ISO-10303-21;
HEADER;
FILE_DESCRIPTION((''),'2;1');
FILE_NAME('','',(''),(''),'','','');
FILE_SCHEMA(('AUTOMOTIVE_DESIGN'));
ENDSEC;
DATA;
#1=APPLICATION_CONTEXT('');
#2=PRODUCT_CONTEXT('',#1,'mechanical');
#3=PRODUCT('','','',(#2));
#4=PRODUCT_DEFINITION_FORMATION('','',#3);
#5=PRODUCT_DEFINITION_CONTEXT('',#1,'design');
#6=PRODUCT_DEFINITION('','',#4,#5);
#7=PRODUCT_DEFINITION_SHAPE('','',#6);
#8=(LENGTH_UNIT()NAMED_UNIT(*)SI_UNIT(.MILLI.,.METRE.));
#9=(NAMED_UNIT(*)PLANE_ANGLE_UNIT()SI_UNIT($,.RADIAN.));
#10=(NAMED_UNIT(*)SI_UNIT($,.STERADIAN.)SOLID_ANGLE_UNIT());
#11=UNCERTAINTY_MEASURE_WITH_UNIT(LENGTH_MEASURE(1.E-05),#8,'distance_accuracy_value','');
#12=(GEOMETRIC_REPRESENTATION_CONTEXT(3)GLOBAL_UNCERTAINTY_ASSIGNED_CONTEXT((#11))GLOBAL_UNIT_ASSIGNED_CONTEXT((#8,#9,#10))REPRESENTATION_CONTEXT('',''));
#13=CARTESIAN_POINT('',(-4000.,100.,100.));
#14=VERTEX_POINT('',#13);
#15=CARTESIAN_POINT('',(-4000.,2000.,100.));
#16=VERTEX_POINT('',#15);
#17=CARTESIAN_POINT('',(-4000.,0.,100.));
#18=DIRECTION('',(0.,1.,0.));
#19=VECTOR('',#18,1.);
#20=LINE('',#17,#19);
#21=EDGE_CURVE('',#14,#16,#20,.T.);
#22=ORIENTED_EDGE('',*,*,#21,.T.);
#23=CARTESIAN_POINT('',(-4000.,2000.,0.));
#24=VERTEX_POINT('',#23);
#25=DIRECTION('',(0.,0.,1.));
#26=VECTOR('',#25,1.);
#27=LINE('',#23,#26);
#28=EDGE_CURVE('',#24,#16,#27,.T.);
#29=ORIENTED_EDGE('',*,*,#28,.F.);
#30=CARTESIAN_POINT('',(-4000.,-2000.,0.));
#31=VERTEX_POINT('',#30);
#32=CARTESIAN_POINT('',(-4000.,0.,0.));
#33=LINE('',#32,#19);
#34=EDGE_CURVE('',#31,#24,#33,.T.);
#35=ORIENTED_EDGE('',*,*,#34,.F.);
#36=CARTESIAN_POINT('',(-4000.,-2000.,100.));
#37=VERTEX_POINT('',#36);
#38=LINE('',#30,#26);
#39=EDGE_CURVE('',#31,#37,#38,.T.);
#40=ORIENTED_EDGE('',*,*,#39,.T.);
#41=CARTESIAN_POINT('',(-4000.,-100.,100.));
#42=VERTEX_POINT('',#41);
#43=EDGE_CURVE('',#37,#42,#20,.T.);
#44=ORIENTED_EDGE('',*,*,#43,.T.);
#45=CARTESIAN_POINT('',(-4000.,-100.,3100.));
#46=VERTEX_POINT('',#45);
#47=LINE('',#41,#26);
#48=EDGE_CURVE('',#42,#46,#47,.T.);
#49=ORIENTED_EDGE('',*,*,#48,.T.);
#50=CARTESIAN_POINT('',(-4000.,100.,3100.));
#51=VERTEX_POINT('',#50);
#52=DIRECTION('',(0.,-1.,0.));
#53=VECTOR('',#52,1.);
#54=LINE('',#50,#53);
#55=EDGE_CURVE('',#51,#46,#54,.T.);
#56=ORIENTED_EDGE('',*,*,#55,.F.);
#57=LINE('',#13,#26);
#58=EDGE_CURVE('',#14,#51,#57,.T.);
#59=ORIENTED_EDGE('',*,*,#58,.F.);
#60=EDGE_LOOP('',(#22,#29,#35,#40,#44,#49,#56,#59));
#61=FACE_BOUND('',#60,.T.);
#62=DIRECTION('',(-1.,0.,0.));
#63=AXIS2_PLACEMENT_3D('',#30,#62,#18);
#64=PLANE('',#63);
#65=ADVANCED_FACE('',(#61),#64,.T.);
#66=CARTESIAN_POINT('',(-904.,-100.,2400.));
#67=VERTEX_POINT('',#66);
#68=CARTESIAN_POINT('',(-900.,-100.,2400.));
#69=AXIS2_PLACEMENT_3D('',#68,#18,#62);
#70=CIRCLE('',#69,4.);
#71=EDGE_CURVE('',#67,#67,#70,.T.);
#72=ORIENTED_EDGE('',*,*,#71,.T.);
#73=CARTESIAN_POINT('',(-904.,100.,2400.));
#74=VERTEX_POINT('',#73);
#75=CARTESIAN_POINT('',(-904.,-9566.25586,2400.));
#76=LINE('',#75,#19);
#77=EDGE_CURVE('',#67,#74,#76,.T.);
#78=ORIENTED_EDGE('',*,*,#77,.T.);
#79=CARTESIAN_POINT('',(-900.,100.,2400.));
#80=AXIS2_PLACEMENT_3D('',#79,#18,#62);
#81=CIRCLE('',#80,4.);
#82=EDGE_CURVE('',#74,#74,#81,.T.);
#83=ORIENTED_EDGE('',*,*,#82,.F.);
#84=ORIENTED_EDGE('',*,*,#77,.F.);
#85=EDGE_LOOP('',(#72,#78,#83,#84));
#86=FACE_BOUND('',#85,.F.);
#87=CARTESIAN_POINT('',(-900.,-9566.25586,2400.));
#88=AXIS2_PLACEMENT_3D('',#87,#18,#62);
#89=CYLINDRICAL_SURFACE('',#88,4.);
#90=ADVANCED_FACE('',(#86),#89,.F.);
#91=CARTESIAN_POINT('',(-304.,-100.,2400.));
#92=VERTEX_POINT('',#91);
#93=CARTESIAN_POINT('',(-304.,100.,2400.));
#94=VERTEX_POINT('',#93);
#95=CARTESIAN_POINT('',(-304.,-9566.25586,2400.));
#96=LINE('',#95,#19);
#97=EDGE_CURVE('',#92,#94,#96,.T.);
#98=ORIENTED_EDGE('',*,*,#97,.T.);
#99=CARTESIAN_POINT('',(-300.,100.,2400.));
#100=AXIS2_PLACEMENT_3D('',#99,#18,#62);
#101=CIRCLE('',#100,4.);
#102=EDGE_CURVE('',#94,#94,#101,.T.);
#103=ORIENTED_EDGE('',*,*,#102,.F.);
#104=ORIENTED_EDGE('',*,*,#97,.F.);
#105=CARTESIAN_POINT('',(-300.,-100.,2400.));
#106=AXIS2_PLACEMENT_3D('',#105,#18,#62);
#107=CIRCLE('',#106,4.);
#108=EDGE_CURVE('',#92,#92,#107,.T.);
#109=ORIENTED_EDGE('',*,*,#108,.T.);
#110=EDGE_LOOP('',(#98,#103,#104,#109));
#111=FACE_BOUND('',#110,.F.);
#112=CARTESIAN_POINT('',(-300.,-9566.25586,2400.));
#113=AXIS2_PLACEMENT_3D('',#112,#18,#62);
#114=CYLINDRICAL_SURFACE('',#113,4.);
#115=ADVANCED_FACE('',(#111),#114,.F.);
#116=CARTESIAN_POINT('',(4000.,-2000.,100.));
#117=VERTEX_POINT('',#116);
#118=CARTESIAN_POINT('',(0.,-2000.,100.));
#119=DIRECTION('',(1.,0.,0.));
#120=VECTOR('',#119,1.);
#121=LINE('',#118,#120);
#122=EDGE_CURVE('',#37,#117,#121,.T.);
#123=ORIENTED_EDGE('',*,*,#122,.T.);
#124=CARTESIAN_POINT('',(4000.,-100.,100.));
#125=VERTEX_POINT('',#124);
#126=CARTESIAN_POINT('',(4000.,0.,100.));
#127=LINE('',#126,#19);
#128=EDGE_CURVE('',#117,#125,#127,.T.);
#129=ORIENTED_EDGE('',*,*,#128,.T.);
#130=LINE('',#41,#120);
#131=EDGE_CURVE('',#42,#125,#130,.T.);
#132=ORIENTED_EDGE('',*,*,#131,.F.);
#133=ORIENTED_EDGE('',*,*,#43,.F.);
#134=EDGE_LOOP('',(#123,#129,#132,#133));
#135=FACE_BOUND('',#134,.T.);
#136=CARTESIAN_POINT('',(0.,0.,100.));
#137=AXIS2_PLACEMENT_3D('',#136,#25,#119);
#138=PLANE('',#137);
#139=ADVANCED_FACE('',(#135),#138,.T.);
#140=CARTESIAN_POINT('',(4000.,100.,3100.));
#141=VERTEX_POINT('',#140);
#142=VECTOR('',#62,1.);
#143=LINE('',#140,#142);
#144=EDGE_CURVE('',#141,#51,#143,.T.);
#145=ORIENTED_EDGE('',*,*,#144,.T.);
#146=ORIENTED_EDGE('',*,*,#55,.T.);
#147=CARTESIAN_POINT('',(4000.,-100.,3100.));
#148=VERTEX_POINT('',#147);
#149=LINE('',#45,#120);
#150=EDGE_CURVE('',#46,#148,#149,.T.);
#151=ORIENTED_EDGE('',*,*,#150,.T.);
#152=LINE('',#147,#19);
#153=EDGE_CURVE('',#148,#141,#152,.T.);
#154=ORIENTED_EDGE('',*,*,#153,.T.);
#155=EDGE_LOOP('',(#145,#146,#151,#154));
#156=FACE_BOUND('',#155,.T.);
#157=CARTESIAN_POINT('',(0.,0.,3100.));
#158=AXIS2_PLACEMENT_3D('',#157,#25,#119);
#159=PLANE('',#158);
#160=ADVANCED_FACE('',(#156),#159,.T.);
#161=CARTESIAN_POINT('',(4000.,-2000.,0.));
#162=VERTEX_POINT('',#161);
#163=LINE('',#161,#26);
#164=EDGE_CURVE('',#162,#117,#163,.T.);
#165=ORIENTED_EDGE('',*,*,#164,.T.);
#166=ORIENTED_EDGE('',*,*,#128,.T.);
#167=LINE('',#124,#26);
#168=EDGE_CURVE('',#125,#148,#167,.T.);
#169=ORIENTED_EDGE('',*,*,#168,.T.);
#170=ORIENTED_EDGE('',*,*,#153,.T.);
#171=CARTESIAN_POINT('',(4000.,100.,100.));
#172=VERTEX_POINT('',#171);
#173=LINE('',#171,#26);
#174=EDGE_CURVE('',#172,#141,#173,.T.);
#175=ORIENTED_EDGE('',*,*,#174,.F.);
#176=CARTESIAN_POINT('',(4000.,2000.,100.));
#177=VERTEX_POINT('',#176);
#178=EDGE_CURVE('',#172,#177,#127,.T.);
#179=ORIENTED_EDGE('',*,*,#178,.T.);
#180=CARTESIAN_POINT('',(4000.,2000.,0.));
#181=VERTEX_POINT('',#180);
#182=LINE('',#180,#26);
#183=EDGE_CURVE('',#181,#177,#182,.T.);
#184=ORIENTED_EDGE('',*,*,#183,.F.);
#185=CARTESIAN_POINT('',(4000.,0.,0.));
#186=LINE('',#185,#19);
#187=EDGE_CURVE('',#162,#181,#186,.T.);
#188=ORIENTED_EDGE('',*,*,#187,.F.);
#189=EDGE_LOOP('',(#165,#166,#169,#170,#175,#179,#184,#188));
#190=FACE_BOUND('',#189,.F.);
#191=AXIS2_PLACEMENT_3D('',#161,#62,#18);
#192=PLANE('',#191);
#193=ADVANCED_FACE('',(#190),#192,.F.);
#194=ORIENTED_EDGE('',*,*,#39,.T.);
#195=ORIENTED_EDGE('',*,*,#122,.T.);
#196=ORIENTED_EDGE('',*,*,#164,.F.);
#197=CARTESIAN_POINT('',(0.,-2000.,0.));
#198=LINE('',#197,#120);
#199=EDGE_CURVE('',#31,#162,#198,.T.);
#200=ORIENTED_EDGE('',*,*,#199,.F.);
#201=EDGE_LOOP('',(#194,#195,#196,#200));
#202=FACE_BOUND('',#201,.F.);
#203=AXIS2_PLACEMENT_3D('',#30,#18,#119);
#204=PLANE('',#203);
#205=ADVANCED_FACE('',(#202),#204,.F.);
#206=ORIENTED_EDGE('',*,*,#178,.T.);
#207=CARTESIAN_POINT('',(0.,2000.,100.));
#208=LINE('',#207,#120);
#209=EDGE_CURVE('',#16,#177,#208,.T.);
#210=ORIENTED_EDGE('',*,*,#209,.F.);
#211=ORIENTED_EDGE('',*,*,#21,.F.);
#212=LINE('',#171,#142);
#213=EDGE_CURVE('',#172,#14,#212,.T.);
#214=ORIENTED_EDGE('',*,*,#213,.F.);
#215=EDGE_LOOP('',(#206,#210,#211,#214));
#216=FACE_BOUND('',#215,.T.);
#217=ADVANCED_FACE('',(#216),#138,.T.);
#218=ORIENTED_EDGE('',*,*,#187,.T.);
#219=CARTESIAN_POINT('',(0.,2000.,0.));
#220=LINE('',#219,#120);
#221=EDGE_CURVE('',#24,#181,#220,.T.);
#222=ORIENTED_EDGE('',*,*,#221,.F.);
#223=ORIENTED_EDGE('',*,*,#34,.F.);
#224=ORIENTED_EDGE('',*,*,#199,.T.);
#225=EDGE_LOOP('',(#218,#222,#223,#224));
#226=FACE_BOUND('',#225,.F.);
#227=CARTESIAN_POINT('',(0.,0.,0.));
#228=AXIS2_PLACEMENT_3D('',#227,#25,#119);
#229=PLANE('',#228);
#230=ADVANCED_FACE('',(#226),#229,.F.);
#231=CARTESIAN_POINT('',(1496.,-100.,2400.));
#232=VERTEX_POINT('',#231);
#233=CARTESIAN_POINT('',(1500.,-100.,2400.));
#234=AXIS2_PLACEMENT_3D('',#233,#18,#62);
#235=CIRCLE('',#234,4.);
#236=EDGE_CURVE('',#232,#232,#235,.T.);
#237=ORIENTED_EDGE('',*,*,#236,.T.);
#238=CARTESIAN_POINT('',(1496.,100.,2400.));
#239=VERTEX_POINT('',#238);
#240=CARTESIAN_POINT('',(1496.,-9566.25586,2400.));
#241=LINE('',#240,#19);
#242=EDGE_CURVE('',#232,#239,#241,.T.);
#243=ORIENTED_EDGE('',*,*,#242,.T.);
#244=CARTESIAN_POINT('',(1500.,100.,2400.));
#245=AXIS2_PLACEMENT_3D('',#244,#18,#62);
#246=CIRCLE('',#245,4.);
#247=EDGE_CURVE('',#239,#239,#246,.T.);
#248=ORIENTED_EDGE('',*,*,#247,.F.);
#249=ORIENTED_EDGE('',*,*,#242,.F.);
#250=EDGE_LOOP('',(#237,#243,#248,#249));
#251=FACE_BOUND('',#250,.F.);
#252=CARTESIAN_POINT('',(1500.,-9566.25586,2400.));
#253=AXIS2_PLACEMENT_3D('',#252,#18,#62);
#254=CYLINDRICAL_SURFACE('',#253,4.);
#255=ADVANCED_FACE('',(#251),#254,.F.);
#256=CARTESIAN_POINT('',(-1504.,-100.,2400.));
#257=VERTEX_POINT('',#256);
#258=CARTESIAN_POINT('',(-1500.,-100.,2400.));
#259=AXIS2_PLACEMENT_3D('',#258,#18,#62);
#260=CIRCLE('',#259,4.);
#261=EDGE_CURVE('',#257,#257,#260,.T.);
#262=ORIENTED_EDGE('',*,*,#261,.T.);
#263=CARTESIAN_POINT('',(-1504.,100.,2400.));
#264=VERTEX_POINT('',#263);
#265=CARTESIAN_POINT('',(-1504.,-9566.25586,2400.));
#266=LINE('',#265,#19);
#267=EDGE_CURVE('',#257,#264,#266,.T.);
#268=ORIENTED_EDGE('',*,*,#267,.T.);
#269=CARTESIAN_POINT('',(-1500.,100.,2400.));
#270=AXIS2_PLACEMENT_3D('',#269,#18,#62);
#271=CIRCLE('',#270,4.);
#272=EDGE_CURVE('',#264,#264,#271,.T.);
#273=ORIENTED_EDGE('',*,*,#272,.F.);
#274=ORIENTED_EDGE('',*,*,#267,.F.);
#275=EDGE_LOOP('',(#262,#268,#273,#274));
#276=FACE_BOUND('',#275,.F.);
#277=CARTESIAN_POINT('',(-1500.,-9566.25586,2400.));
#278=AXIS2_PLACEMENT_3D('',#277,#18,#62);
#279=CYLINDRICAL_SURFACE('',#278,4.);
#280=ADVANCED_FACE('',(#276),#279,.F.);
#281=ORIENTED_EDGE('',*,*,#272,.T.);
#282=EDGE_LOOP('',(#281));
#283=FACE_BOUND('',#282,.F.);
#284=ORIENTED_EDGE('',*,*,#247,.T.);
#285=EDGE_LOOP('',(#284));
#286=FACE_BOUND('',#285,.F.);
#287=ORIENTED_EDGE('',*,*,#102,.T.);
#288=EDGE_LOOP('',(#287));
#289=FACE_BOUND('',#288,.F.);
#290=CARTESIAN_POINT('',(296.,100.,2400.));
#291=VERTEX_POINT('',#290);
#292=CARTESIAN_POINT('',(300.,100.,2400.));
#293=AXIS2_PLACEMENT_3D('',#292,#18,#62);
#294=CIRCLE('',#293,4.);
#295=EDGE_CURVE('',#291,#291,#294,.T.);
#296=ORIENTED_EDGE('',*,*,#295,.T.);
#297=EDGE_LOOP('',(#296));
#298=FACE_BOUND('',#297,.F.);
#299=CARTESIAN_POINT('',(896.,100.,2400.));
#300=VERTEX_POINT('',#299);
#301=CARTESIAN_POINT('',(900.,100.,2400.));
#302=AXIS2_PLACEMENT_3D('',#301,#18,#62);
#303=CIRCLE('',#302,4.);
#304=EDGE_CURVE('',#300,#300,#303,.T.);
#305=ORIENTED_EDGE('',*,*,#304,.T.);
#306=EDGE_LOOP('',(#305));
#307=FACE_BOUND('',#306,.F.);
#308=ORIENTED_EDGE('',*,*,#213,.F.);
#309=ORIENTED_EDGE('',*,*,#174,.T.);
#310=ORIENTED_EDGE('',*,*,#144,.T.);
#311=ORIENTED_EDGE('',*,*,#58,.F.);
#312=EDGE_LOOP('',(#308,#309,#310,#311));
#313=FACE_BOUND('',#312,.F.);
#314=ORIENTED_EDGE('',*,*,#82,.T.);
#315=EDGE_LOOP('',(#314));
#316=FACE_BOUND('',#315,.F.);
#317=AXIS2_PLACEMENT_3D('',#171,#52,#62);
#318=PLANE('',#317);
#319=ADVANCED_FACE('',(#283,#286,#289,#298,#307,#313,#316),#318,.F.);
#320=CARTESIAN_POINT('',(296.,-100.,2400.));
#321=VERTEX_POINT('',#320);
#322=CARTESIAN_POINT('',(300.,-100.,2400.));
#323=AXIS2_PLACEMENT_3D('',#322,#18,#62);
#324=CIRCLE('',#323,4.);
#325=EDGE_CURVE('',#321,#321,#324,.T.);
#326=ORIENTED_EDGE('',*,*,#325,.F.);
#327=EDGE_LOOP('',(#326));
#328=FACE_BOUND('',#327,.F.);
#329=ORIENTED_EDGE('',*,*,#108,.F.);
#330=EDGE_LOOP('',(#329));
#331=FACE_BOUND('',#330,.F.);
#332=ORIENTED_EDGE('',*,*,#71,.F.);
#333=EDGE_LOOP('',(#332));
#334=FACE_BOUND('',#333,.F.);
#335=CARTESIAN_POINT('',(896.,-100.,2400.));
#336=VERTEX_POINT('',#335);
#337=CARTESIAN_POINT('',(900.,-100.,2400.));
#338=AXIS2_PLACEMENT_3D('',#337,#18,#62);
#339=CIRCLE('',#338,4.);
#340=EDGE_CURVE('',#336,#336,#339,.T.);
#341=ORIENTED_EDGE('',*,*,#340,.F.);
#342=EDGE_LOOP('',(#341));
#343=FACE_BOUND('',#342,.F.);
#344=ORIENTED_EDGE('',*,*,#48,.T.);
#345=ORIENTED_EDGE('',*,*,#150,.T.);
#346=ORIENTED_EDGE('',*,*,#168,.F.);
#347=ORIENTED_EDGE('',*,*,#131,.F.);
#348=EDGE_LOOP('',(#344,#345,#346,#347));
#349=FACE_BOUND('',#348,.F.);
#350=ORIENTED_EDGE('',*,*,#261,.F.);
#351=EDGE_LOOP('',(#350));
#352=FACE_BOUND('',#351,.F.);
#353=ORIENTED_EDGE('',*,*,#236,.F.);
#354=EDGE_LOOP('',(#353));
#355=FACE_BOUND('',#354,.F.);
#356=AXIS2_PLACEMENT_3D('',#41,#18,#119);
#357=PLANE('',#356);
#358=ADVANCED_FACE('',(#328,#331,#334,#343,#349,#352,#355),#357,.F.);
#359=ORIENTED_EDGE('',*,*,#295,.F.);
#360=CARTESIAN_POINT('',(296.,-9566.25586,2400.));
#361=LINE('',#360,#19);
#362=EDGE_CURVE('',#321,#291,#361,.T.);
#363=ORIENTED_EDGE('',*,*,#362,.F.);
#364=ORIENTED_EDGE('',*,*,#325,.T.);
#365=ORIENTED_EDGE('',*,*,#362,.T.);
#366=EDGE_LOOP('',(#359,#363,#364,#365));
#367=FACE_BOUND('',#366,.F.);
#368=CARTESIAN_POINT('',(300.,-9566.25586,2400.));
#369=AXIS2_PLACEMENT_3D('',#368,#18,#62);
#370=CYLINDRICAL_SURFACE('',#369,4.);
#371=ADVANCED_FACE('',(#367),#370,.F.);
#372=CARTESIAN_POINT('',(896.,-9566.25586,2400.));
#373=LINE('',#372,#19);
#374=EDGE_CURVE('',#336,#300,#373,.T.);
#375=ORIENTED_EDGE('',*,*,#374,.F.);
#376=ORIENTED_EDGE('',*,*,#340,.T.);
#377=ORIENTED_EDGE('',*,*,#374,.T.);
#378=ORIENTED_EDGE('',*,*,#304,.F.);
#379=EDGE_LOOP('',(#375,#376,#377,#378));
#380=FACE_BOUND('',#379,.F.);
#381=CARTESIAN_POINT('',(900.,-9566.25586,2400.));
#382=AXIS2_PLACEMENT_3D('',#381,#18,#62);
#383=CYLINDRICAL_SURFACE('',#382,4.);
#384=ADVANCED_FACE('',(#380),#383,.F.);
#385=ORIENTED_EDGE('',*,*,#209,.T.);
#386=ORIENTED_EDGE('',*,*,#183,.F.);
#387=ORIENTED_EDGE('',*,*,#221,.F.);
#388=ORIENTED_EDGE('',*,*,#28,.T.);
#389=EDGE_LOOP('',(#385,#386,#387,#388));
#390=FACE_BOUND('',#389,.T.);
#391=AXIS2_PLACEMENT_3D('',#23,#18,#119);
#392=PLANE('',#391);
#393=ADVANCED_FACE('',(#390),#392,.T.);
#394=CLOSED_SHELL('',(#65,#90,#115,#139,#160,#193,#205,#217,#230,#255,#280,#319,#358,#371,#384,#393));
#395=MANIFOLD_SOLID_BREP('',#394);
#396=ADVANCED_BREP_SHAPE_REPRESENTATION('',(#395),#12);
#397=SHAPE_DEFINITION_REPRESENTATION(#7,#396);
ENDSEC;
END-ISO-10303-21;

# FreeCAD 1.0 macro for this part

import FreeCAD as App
import Part
import Sketcher

doc = App.newDocument("Part")
params = doc.addObject("Spreadsheet::Sheet", "Params")
for row, (alias, value) in enumerate([
    ("sketch1_width", "8000 mm"),
    ("sketch1_height", "4000 mm"),
    ("pad1_length", "100 mm"),
    ("sketch2_width", "8000 mm"),
    ("sketch2_height", "200 mm"),
    ("pad2_length", "3000 mm"),
    ("sketch3_diameter", "8 mm"),
    ("hole_diameter", "8 mm"),
], start=1):
    params.set(f"A{row}", alias)
    params.set(f"B{row}", "=" + value)
    params.setAlias(f"B{row}", alias)

body = doc.addObject("PartDesign::Body", "Body")

sketch1 = body.newObject("Sketcher::SketchObject", "Sketch")
sketch1.AttachmentSupport = (doc.getObject("XY_Plane"), [""])
sketch1.MapMode = "FlatFace"
sketch1.addGeometry(Part.LineSegment(App.Vector(-4000, 2000, 0), App.Vector(-4000, -2000, 0)), False)
sketch1.addGeometry(Part.LineSegment(App.Vector(-4000, -2000, 0), App.Vector(4000, -2000, 0)), False)
sketch1.addGeometry(Part.LineSegment(App.Vector(4000, -2000, 0), App.Vector(4000, 2000, 0)), False)
sketch1.addGeometry(Part.LineSegment(App.Vector(4000, 2000, 0), App.Vector(-4000, 2000, 0)), False)
sketch1.addConstraint(Sketcher.Constraint("Coincident", 0, 2, 1, 1))
sketch1.addConstraint(Sketcher.Constraint("Coincident", 1, 2, 2, 1))
sketch1.addConstraint(Sketcher.Constraint("Coincident", 2, 2, 3, 1))
sketch1.addConstraint(Sketcher.Constraint("Coincident", 3, 2, 0, 1))
sketch1.addConstraint(Sketcher.Constraint("Vertical", 0))
sketch1.addConstraint(Sketcher.Constraint("Horizontal", 1))
sketch1.addConstraint(Sketcher.Constraint("Vertical", 2))
sketch1.addConstraint(Sketcher.Constraint("Horizontal", 3))
sketch1.addConstraint(Sketcher.Constraint("Symmetric", 0, 2, 2, 2, -1, 1))
sketch1.addConstraint(Sketcher.Constraint("DistanceX", 1, 1, 1, 2, 8000.0))
sketch1.addConstraint(Sketcher.Constraint("DistanceY", 0, 2, 0, 1, 4000.0))
sketch1.setExpression("Constraints[9]", "Params.sketch1_width")
sketch1.setExpression("Constraints[10]", "Params.sketch1_height")
pad1 = body.newObject("PartDesign::Pad", "Pad")
pad1.Profile = sketch1
pad1.setExpression("Length", "Params.pad1_length")

sketch2 = body.newObject("Sketcher::SketchObject", "Sketch001")
sketch2.AttachmentSupport = (doc.getObject("XY_Plane"), [""])
sketch2.MapMode = "FlatFace"
sketch2.AttachmentOffset = App.Placement(App.Vector(0, 0, 100), App.Rotation())
sketch2.addGeometry(Part.LineSegment(App.Vector(-4000, 100, 0), App.Vector(-4000, -100, 0)), False)
sketch2.addGeometry(Part.LineSegment(App.Vector(-4000, -100, 0), App.Vector(4000, -100, 0)), False)
sketch2.addGeometry(Part.LineSegment(App.Vector(4000, -100, 0), App.Vector(4000, 100, 0)), False)
sketch2.addGeometry(Part.LineSegment(App.Vector(4000, 100, 0), App.Vector(-4000, 100, 0)), False)
sketch2.addConstraint(Sketcher.Constraint("Coincident", 0, 2, 1, 1))
sketch2.addConstraint(Sketcher.Constraint("Coincident", 1, 2, 2, 1))
sketch2.addConstraint(Sketcher.Constraint("Coincident", 2, 2, 3, 1))
sketch2.addConstraint(Sketcher.Constraint("Coincident", 3, 2, 0, 1))
sketch2.addConstraint(Sketcher.Constraint("Vertical", 0))
sketch2.addConstraint(Sketcher.Constraint("Horizontal", 1))
sketch2.addConstraint(Sketcher.Constraint("Vertical", 2))
sketch2.addConstraint(Sketcher.Constraint("Horizontal", 3))
sketch2.addConstraint(Sketcher.Constraint("Symmetric", 0, 2, 2, 2, -1, 1))
sketch2.addConstraint(Sketcher.Constraint("DistanceX", 1, 1, 1, 2, 8000.0))
sketch2.addConstraint(Sketcher.Constraint("DistanceY", 0, 2, 0, 1, 200.0))
sketch2.setExpression("Constraints[9]", "Params.sketch2_width")
sketch2.setExpression("Constraints[10]", "Params.sketch2_height")
pad2 = body.newObject("PartDesign::Pad", "Pad001")
pad2.Profile = sketch2
pad2.setExpression("Length", "Params.pad2_length")

sketch3 = body.newObject("Sketcher::SketchObject", "Sketch002")
sketch3.AttachmentSupport = (doc.getObject("XZ_Plane"), [""])
sketch3.MapMode = "FlatFace"
sketch3.AttachmentOffset = App.Placement(App.Vector(0, 0, 100), App.Rotation())
sketch3.addGeometry(Part.Circle(App.Vector(-1500, 2400, 0), App.Vector(0, 0, 1), 4), False)
sketch3.addGeometry(Part.Circle(App.Vector(-900, 2400, 0), App.Vector(0, 0, 1), 4), False)
sketch3.addGeometry(Part.Circle(App.Vector(-300, 2400, 0), App.Vector(0, 0, 1), 4), False)
sketch3.addGeometry(Part.Circle(App.Vector(300, 2400, 0), App.Vector(0, 0, 1), 4), False)
sketch3.addGeometry(Part.Circle(App.Vector(900, 2400, 0), App.Vector(0, 0, 1), 4), False)
sketch3.addGeometry(Part.Circle(App.Vector(1500, 2400, 0), App.Vector(0, 0, 1), 4), False)
sketch3.addConstraint(Sketcher.Constraint("Equal", 0, 1))
sketch3.addConstraint(Sketcher.Constraint("Equal", 1, 2))
sketch3.addConstraint(Sketcher.Constraint("Equal", 2, 3))
sketch3.addConstraint(Sketcher.Constraint("Equal", 3, 4))
sketch3.addConstraint(Sketcher.Constraint("Equal", 4, 5))
sketch3.addConstraint(Sketcher.Constraint("Symmetric", 2, 3, 3, 3, -2))
sketch3.addConstraint(Sketcher.Constraint("Symmetric", 1, 3, 4, 3, -2))
sketch3.addConstraint(Sketcher.Constraint("Symmetric", 0, 3, 5, 3, -2))
sketch3.addConstraint(Sketcher.Constraint("Horizontal", 0, 3, 1, 3))
sketch3.addConstraint(Sketcher.Constraint("Horizontal", 1, 3, 2, 3))
sketch3.addConstraint(Sketcher.Constraint("Diameter", 0, 8.0))
sketch3.addConstraint(Sketcher.Constraint("DistanceX", 0, 3, -1, 1, 1500.0))
sketch3.addConstraint(Sketcher.Constraint("DistanceY", -1, 1, 0, 3, 2400.0))
sketch3.addConstraint(Sketcher.Constraint("DistanceX", 1, 3, -1, 1, 900.0))
sketch3.addConstraint(Sketcher.Constraint("DistanceX", 2, 3, -1, 1, 300.0))
sketch3.setExpression("Constraints[10]", "Params.sketch3_diameter")
doc.recompute()
hole = body.newObject("PartDesign::Hole", "Hole")
hole.Profile = sketch3
hole.ThreadType = "None"
hole.setExpression("Diameter", "Params.hole_diameter")
hole.DepthType = "ThroughAll"

doc.recompute()
